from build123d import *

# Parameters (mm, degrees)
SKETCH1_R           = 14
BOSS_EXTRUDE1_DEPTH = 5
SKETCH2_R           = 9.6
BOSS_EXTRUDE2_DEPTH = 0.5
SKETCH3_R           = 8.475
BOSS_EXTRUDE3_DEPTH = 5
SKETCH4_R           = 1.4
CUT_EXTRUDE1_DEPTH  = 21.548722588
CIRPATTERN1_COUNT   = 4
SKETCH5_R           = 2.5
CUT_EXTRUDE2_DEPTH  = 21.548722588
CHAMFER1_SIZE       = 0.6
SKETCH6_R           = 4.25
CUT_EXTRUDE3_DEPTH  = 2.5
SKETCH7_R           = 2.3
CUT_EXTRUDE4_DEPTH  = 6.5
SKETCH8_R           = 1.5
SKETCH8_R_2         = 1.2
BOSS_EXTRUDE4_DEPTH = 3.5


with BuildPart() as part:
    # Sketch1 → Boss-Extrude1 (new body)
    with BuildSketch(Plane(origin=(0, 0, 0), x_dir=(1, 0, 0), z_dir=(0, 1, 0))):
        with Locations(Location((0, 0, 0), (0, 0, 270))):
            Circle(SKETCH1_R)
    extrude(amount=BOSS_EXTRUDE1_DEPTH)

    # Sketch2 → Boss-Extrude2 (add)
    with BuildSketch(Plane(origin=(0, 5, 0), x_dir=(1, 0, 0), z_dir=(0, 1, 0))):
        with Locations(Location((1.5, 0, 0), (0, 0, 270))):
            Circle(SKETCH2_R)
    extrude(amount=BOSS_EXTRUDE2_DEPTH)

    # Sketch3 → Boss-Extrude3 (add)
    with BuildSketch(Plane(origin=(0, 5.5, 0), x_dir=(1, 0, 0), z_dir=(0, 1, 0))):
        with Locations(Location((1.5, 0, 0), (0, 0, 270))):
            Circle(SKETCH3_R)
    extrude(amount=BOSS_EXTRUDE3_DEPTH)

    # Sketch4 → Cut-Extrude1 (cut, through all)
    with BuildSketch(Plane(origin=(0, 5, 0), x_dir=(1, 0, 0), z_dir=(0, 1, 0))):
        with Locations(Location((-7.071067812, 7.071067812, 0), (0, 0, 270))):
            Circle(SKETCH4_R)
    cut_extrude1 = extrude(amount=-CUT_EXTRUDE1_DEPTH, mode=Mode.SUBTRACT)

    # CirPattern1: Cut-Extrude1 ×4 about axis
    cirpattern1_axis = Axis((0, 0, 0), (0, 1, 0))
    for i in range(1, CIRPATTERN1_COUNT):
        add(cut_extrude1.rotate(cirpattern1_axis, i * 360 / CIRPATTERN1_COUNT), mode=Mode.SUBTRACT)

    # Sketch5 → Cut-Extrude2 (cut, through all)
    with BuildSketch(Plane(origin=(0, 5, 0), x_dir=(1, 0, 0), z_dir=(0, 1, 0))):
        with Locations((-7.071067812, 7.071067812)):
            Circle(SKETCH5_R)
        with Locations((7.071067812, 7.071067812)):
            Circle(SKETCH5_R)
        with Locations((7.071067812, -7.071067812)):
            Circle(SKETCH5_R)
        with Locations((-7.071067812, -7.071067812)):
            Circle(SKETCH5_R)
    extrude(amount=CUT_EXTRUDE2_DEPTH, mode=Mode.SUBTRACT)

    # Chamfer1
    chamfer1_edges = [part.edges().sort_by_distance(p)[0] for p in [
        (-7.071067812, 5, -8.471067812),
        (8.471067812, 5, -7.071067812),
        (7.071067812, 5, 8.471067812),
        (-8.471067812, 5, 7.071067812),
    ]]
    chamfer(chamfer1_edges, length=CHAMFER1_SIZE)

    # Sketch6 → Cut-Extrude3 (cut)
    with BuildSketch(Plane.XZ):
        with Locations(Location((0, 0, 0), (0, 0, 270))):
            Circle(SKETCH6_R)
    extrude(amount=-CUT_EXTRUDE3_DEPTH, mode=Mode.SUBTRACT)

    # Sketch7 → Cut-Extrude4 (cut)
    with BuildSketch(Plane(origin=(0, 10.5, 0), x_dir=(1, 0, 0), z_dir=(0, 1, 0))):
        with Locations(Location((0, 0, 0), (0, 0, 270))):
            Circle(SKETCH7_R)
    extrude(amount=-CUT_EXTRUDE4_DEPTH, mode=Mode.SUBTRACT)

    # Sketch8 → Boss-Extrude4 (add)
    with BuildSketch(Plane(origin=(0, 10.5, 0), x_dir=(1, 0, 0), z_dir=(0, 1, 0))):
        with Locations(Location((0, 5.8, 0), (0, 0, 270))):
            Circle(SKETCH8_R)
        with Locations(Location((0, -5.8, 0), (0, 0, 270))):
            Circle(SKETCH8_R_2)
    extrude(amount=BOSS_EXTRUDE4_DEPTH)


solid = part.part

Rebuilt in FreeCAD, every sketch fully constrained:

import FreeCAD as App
import Part
import Sketcher

V = App.Vector


def edges_at(feature, points):
    """Names of the edges that pass closest to the given points."""
    edges = feature.Shape.Edges
    near = lambda p: min(range(len(edges)), key=lambda i: edges[i].distToShape(Part.Vertex(*p))[0])
    return sorted({f"Edge{near(p) + 1}" for p in points})

doc = App.newDocument("Part")
body = doc.addObject("PartDesign::Body", "Body")

sketch1 = doc.addObject("Sketcher::SketchObject", "Sketch")
body.addObject(sketch1)
sketch1.AttachmentSupport = (doc.XZ_Plane, [""])
sketch1.MapMode = "FlatFace"
sketch1.addGeometry(Part.Circle(V(0, 0, 0), V(0, 0, 1), 14), False)
sketch1.addConstraint([
    Sketcher.Constraint("Coincident", 0, 3, -1, 1),
    Sketcher.Constraint("Diameter", 0, 28.0),
])
pad1 = doc.addObject("PartDesign::Pad", "Pad")
body.addObject(pad1)
pad1.Profile = sketch1
pad1.Length = 5
pad1.Reversed = True

sketch2 = doc.addObject("Sketcher::SketchObject", "Sketch001")
body.addObject(sketch2)
sketch2.AttachmentSupport = (doc.XZ_Plane, [""])
sketch2.MapMode = "FlatFace"
sketch2.AttachmentOffset = App.Placement(V(0, 0, -5), App.Rotation())
sketch2.addGeometry(Part.Circle(V(1.5, 0, 0), V(0, 0, 1), 9.6), False)
sketch2.addConstraint([
    Sketcher.Constraint("PointOnObject", 0, 3, -1),
    Sketcher.Constraint("Diameter", 0, 19.2),
    Sketcher.Constraint("DistanceX", -1, 1, 0, 3, 1.5),
])
pad2 = doc.addObject("PartDesign::Pad", "Pad001")
body.addObject(pad2)
pad2.Profile = sketch2
pad2.Length = 0.5
pad2.Reversed = True

sketch3 = doc.addObject("Sketcher::SketchObject", "Sketch002")
body.addObject(sketch3)
sketch3.AttachmentSupport = (doc.XZ_Plane, [""])
sketch3.MapMode = "FlatFace"
sketch3.AttachmentOffset = App.Placement(V(0, 0, -5.5), App.Rotation())
sketch3.addGeometry(Part.Circle(V(1.5, 0, 0), V(0, 0, 1), 8.475), False)
sketch3.addConstraint([
    Sketcher.Constraint("PointOnObject", 0, 3, -1),
    Sketcher.Constraint("Diameter", 0, 16.95),
    Sketcher.Constraint("DistanceX", -1, 1, 0, 3, 1.5),
])
pad3 = doc.addObject("PartDesign::Pad", "Pad002")
body.addObject(pad3)
pad3.Profile = sketch3
pad3.Length = 5
pad3.Reversed = True

sketch4 = doc.addObject("Sketcher::SketchObject", "Sketch003")
body.addObject(sketch4)
sketch4.AttachmentSupport = (doc.XZ_Plane, [""])
sketch4.MapMode = "FlatFace"
sketch4.AttachmentOffset = App.Placement(V(0, 0, -5), App.Rotation())
sketch4.addGeometry(Part.Circle(V(-7.071068, -7.071068, 0), V(0, 0, 1), 1.4), False)
sketch4.addConstraint([
    Sketcher.Constraint("Diameter", 0, 2.8),
    Sketcher.Constraint("DistanceX", 0, 3, -1, 1, 7.071068),
    Sketcher.Constraint("DistanceY", 0, 3, -1, 1, 7.071068),
])
pocket1 = doc.addObject("PartDesign::Pocket", "Pocket")
body.addObject(pocket1)
pocket1.Profile = sketch4
pocket1.Type = "ThroughAll"
pocket1.Reversed = True
doc.recompute()

polarpattern = doc.addObject("PartDesign::PolarPattern", "PolarPattern")
body.addObject(polarpattern)
polarpattern.Originals = [pocket1]
polarpattern.Axis = (doc.Y_Axis, [""])
polarpattern.Angle = 360
polarpattern.Occurrences = 4
body.Tip = polarpattern

sketch5 = doc.addObject("Sketcher::SketchObject", "Sketch004")
body.addObject(sketch5)
sketch5.AttachmentSupport = (doc.XZ_Plane, [""])
sketch5.MapMode = "FlatFace"
sketch5.AttachmentOffset = App.Placement(V(0, 0, -5), App.Rotation())
sketch5.addGeometry([
    Part.Circle(V(-7.071068, -7.071068, 0), V(0, 0, 1), 2.5),
    Part.Circle(V(7.071068, -7.071068, 0), V(0, 0, 1), 2.5),
    Part.Circle(V(7.071068, 7.071068, 0), V(0, 0, 1), 2.5),
    Part.Circle(V(-7.071068, 7.071068, 0), V(0, 0, 1), 2.5),
], False)
sketch5.addConstraint([
    Sketcher.Constraint("Equal", 0, 1),
    Sketcher.Constraint("Equal", 1, 2),
    Sketcher.Constraint("Equal", 2, 3),
    Sketcher.Constraint("Symmetric", 0, 3, 2, 3, -1, 1),
    Sketcher.Constraint("Symmetric", 1, 3, 3, 3, -1, 1),
    Sketcher.Constraint("Symmetric", 0, 3, 1, 3, -2),
    Sketcher.Constraint("Diameter", 0, 5.0),
    Sketcher.Constraint("DistanceX", 0, 3, -1, 1, 7.071068),
    Sketcher.Constraint("DistanceY", 0, 3, -1, 1, 7.071068),
])
pocket2 = doc.addObject("PartDesign::Pocket", "Pocket001")
body.addObject(pocket2)
pocket2.Profile = sketch5
pocket2.Type = "ThroughAll"
doc.recompute()

chamfer = doc.addObject("PartDesign::Chamfer", "Chamfer")
body.addObject(chamfer)
chamfer.Base = (pocket2, edges_at(pocket2, [
    (-7.071, 5, -8.471),
    (8.471, 5, -7.071),
    (7.071, 5, 8.471),
    (-8.471, 5, 7.071),
]))
chamfer.Size = 0.6

sketch6 = doc.addObject("Sketcher::SketchObject", "Sketch005")
body.addObject(sketch6)
sketch6.AttachmentSupport = (doc.XZ_Plane, [""])
sketch6.MapMode = "FlatFace"
sketch6.addGeometry(Part.Circle(V(0, 0, 0), V(0, 0, 1), 4.25), False)
sketch6.addConstraint([
    Sketcher.Constraint("Coincident", 0, 3, -1, 1),
    Sketcher.Constraint("Diameter", 0, 8.5),
])
pocket3 = doc.addObject("PartDesign::Pocket", "Pocket002")
body.addObject(pocket3)
pocket3.Profile = sketch6
pocket3.Length = 2.5

sketch7 = doc.addObject("Sketcher::SketchObject", "Sketch006")
body.addObject(sketch7)
sketch7.AttachmentSupport = (doc.XZ_Plane, [""])
sketch7.MapMode = "FlatFace"
sketch7.AttachmentOffset = App.Placement(V(0, 0, -10.5), App.Rotation())
sketch7.addGeometry(Part.Circle(V(0, 0, 0), V(0, 0, 1), 2.3), False)
sketch7.addConstraint([
    Sketcher.Constraint("Coincident", 0, 3, -1, 1),
    Sketcher.Constraint("Diameter", 0, 4.6),
])
pocket4 = doc.addObject("PartDesign::Pocket", "Pocket003")
body.addObject(pocket4)
pocket4.Profile = sketch7
pocket4.Length = 6.5
pocket4.Reversed = True

sketch8 = doc.addObject("Sketcher::SketchObject", "Sketch007")
body.addObject(sketch8)
sketch8.AttachmentSupport = (doc.XZ_Plane, [""])
sketch8.MapMode = "FlatFace"
sketch8.AttachmentOffset = App.Placement(V(0, 0, -10.5), App.Rotation())
sketch8.addGeometry([
    Part.Circle(V(0, -5.8, 0), V(0, 0, 1), 1.5),
    Part.Circle(V(0, 5.8, 0), V(0, 0, 1), 1.2),
], False)
sketch8.addConstraint([
    Sketcher.Constraint("Symmetric", 0, 3, 1, 3, -1, 1),
    Sketcher.Constraint("PointOnObject", 0, 3, -2),
    Sketcher.Constraint("Diameter", 0, 3.0),
    Sketcher.Constraint("Diameter", 1, 2.4),
    Sketcher.Constraint("DistanceY", 0, 3, -1, 1, 5.8),
])
pad4 = doc.addObject("PartDesign::Pad", "Pad003")
body.addObject(pad4)
pad4.Profile = sketch8
pad4.Length = 3.5
pad4.Reversed = True

doc.recompute()
